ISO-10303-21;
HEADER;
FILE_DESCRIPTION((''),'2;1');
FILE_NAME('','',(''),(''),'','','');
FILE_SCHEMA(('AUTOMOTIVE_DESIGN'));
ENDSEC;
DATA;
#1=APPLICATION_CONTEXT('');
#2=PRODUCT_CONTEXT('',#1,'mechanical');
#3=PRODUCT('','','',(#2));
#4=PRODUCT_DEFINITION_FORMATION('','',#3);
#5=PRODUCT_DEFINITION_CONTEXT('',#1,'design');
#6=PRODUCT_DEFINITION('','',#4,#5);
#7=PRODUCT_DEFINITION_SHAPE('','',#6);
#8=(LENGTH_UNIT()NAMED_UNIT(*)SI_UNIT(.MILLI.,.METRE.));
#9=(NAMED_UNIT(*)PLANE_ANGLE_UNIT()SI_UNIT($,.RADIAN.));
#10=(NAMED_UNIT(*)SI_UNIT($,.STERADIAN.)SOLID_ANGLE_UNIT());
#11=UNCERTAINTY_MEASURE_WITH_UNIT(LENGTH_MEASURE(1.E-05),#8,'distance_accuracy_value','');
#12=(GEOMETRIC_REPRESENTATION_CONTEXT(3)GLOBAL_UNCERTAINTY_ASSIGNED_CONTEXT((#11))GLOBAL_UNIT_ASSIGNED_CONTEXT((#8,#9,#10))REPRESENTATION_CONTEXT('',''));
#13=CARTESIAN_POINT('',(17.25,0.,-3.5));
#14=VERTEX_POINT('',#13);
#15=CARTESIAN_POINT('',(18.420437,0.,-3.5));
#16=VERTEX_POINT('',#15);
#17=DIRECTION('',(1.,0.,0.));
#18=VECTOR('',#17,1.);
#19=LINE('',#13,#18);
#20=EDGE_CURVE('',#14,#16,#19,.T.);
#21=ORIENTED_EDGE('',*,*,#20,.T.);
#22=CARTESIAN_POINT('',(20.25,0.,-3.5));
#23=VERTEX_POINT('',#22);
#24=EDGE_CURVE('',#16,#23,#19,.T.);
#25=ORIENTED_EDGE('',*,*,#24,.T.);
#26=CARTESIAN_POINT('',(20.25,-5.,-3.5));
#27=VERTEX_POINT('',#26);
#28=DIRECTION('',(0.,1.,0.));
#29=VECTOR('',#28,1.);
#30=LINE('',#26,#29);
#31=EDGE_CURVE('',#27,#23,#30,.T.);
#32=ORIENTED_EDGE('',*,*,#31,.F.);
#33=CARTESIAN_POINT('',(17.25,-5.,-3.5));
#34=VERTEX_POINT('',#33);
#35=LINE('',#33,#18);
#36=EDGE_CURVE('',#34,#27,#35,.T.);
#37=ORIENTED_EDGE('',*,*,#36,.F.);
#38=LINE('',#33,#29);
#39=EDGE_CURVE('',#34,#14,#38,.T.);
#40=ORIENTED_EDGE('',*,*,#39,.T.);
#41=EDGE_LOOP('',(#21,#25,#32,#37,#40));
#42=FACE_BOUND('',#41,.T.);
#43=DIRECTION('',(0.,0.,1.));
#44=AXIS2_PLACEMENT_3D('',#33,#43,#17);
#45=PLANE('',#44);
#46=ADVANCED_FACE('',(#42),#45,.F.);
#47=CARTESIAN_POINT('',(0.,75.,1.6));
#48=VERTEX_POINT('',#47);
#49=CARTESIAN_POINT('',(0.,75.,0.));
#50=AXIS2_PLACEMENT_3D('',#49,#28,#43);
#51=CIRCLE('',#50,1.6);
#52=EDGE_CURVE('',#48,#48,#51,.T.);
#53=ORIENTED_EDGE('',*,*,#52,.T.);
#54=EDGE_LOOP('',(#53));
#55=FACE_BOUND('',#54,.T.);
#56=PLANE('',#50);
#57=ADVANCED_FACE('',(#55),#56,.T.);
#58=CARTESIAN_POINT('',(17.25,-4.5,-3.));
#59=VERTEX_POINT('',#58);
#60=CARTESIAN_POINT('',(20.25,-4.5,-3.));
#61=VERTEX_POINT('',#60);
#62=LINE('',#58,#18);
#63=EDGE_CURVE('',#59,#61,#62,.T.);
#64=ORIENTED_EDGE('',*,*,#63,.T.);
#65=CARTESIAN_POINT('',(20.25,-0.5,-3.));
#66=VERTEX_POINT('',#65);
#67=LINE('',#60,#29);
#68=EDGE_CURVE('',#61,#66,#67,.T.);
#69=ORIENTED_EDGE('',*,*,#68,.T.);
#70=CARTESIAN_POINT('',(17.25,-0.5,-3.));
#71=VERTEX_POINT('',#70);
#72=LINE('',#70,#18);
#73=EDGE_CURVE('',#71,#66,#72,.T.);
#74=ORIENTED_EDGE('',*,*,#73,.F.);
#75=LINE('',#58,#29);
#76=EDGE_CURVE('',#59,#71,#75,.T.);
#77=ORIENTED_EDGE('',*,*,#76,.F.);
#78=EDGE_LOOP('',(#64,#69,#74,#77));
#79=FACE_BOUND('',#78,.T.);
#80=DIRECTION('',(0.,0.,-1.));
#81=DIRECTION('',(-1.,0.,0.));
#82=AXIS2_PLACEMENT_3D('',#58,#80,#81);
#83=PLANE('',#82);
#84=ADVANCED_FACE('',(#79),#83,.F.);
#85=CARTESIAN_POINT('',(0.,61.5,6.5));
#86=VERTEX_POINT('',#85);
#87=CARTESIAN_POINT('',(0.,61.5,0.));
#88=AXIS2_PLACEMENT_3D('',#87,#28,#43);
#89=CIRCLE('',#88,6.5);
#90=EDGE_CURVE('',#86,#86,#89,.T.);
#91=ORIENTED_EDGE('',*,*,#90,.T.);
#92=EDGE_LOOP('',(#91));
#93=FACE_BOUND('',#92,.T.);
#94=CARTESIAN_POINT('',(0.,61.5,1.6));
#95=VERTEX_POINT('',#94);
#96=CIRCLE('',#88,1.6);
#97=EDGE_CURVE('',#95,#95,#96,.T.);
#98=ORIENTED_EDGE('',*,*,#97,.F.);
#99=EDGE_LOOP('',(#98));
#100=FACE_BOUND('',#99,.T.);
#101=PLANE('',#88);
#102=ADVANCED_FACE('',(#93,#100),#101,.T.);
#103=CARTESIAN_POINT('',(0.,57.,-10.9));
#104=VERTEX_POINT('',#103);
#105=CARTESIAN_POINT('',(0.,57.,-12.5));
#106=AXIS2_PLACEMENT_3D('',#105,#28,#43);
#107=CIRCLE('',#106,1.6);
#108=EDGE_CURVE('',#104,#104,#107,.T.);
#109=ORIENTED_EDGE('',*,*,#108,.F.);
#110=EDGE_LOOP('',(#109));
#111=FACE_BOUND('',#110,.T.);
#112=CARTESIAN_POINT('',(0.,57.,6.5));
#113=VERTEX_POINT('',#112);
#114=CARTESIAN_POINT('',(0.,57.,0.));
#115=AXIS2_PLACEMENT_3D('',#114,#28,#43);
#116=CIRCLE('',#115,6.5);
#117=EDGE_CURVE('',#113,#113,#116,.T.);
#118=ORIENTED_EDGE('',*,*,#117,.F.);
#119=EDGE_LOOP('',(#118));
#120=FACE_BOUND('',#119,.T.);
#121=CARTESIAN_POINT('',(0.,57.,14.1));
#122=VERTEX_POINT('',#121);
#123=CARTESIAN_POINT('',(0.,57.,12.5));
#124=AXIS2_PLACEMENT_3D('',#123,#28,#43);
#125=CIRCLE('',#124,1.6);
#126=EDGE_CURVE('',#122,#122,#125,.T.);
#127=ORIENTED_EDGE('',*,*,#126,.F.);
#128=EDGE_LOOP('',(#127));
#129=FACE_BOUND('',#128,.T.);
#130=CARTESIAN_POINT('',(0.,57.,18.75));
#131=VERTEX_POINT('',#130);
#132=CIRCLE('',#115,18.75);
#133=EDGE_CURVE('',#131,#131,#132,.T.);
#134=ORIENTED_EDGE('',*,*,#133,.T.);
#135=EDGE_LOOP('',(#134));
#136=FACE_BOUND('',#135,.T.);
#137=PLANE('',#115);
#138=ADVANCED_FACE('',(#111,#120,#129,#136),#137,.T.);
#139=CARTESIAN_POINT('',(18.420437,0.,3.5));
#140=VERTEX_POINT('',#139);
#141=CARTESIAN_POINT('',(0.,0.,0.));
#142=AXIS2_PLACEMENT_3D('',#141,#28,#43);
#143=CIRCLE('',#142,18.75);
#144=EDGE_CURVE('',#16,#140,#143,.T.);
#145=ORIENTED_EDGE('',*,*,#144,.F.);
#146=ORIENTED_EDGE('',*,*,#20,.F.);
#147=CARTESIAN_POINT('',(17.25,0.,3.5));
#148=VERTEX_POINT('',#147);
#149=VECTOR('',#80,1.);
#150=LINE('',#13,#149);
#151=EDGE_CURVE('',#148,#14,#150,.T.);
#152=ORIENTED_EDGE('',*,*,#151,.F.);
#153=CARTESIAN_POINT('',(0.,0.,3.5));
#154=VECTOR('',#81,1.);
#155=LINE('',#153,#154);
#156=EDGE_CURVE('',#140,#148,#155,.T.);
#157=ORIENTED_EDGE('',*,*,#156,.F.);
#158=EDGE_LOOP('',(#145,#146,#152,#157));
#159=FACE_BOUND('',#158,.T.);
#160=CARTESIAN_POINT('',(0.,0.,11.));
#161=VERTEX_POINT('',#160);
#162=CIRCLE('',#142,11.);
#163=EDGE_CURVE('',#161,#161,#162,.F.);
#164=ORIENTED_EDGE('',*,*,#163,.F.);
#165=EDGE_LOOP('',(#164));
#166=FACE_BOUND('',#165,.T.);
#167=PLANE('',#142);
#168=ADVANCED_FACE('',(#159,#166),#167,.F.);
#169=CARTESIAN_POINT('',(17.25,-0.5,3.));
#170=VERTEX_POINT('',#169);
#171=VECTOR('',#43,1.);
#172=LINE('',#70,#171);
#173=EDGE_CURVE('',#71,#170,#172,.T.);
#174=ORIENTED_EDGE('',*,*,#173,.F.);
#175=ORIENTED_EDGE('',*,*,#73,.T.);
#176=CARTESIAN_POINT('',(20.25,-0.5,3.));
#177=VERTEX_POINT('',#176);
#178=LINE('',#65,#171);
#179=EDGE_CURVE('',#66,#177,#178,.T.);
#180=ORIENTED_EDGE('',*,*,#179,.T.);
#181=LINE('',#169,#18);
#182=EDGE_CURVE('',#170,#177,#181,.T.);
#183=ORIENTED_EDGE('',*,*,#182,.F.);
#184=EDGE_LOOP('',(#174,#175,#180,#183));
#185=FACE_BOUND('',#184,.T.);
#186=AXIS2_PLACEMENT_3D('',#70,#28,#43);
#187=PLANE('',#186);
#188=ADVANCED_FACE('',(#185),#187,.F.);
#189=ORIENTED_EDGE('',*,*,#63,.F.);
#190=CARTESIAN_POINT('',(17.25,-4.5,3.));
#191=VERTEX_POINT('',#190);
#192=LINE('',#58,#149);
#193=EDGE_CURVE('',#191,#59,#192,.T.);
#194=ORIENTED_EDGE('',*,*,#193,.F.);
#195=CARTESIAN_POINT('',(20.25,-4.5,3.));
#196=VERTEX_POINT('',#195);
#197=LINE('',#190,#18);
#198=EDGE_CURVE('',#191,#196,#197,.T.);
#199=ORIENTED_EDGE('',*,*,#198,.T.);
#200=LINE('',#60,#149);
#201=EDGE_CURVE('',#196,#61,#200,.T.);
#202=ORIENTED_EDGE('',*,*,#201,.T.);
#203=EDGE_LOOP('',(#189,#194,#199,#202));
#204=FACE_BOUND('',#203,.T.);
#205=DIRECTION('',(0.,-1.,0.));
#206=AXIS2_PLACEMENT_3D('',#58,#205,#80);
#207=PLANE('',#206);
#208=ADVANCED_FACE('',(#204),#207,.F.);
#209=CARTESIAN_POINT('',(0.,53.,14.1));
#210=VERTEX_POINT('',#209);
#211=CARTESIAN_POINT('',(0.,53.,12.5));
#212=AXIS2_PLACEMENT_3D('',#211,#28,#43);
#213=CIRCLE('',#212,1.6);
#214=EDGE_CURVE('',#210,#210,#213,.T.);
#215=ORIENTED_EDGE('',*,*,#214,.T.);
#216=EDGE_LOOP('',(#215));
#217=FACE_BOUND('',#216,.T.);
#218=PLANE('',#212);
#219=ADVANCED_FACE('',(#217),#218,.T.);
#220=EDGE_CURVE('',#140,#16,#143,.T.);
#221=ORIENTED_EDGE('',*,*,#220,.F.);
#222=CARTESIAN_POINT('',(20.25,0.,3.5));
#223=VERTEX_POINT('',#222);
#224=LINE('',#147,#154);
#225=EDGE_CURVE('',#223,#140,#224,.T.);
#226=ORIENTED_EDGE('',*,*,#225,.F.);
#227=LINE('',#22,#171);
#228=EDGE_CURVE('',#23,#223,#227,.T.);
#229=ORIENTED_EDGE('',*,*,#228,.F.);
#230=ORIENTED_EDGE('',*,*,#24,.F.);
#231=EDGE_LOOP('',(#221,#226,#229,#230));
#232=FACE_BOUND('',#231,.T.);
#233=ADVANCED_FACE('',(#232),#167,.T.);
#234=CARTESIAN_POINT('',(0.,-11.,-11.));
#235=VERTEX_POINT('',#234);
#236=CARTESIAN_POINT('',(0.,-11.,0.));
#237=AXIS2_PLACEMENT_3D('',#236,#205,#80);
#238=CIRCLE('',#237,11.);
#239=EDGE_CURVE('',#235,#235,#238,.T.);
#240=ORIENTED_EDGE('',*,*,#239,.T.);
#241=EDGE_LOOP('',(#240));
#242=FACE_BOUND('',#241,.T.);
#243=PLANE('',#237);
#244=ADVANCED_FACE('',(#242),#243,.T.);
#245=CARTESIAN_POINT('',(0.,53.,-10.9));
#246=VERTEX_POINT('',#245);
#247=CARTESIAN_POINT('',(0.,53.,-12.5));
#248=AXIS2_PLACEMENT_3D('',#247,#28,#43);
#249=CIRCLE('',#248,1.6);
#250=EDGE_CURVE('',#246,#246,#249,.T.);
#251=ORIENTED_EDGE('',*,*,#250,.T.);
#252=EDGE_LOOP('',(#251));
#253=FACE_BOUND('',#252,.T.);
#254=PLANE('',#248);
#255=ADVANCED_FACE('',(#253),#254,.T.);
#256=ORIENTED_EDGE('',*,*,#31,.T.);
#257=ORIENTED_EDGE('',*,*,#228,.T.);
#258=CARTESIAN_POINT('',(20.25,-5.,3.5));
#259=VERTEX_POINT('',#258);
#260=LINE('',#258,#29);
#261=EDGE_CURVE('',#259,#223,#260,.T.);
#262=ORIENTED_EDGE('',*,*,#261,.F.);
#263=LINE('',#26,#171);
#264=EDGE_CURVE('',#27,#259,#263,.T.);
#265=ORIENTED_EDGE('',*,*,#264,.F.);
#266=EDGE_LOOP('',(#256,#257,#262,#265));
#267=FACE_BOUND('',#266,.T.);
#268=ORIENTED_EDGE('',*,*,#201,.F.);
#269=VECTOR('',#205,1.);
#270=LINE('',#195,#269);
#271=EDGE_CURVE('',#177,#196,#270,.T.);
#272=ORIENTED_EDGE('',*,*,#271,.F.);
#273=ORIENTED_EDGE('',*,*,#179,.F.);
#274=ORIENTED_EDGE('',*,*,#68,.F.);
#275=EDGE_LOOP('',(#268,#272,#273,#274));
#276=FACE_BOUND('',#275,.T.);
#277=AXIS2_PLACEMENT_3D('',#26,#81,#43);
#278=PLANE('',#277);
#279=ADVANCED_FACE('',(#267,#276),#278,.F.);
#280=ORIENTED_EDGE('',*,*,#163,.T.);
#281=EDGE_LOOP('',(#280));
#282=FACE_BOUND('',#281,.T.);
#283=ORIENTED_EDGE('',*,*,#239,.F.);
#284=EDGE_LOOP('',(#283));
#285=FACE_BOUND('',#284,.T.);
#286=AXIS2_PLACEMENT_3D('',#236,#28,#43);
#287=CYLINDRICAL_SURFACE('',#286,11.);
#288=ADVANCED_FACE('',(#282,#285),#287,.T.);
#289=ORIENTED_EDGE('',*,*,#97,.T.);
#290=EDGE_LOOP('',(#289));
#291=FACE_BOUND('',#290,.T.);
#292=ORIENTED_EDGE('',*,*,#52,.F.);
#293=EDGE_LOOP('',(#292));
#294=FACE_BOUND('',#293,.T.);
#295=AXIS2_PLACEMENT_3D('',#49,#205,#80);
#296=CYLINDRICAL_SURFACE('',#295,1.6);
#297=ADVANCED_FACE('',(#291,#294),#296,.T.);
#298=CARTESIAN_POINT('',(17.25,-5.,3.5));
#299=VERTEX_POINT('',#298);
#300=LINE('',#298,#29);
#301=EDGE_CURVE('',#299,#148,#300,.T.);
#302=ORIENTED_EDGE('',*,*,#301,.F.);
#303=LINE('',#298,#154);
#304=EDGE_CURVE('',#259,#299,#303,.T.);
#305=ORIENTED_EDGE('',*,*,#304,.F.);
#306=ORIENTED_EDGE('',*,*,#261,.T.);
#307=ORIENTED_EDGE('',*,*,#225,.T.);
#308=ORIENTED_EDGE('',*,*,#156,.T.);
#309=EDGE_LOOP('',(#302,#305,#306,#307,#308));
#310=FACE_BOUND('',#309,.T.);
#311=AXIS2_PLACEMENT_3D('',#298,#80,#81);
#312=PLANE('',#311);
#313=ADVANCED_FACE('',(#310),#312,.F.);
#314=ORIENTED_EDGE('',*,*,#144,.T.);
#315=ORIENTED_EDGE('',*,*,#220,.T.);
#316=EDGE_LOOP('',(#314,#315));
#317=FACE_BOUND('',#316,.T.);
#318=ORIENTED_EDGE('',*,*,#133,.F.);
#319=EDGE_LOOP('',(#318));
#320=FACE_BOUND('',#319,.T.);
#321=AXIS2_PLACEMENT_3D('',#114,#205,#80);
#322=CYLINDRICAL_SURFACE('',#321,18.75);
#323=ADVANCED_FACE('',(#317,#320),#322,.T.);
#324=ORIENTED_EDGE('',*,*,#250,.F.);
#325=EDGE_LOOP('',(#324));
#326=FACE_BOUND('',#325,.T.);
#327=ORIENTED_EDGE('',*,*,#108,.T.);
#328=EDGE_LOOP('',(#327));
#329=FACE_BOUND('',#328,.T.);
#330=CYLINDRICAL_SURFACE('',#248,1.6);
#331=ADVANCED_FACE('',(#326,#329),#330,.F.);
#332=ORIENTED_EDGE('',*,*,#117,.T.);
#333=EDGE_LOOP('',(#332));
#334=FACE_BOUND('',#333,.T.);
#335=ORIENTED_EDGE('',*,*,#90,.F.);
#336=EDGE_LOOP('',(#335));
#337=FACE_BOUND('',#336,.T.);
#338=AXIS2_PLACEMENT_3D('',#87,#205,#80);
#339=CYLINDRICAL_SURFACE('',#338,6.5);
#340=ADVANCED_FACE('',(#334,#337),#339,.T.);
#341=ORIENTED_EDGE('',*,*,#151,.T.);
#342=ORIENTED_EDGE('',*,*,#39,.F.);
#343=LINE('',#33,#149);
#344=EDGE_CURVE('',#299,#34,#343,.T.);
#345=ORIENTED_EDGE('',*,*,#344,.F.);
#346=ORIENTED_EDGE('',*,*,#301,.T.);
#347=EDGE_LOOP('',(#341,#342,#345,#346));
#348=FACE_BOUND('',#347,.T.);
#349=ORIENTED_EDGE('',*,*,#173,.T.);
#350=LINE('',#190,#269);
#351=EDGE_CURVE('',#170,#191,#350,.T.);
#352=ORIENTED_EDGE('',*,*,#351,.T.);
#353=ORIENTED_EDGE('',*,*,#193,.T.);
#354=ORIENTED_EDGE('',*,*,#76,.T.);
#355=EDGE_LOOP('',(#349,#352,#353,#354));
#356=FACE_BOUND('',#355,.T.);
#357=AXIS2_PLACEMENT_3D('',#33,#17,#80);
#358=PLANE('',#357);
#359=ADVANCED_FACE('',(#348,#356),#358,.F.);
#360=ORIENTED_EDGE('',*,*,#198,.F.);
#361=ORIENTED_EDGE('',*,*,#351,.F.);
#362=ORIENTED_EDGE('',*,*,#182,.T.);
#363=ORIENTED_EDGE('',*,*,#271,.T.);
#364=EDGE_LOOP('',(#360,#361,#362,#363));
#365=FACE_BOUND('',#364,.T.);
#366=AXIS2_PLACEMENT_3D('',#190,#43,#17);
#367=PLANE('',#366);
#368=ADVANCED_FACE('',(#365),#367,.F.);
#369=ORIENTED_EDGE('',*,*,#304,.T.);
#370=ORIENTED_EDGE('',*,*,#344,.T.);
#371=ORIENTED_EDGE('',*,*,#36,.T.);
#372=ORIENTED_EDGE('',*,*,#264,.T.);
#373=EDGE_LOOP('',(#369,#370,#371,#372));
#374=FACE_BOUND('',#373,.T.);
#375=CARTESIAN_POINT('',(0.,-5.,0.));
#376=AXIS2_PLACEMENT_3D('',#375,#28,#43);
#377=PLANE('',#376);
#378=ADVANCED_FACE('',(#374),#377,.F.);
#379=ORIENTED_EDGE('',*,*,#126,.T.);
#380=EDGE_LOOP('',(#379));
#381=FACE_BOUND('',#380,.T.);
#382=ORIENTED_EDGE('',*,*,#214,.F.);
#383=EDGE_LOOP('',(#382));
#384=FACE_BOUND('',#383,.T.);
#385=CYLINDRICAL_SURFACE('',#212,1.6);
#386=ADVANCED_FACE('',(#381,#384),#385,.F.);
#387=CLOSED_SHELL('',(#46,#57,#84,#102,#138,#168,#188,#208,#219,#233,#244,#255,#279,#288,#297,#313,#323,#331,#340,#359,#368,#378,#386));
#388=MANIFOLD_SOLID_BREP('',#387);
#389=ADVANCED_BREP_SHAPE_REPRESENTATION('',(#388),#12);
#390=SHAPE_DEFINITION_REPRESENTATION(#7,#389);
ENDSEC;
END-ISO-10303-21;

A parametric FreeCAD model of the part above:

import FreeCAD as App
import Part
import Sketcher

V = App.Vector

doc = App.newDocument("Part")
body = doc.addObject("PartDesign::Body", "Body")

# Sketch on XZ plane
sketch1 = body.newObject("Sketcher::SketchObject", "Sketch")
sketch1.AttachmentSupport = (doc.getObject("XZ_Plane"), [""])
sketch1.MapMode = "FlatFace"
sketch1.addGeometry(Part.Circle(V(0, 0, 0), V(0, 0, 1), 19), False)
sketch1.addConstraint(Sketcher.Constraint("Coincident", 0, 3, -1, 1))
sketch1.addConstraint(Sketcher.Constraint("Diameter", 0, 37.5))
pad1 = body.newObject("PartDesign::Pad", "Pad")
pad1.Profile = sketch1
pad1.Length = 57
pad1.Reversed = True

# Sketch on XZ plane
sketch2 = body.newObject("Sketcher::SketchObject", "Sketch001")
sketch2.AttachmentSupport = (doc.getObject("XZ_Plane"), [""])
sketch2.MapMode = "FlatFace"
sketch2.addGeometry(Part.Circle(V(0, 0, 0), V(0, 0, 1), 11), False)
sketch2.addConstraint(Sketcher.Constraint("Coincident", 0, 3, -1, 1))
sketch2.addConstraint(Sketcher.Constraint("Diameter", 0, 22.0))
pad2 = body.newObject("PartDesign::Pad", "Pad001")
pad2.Profile = sketch2
pad2.Length = 11

# Sketch on XZ plane
sketch3 = body.newObject("Sketcher::SketchObject", "Sketch002")
sketch3.AttachmentSupport = (doc.getObject("XZ_Plane"), [""])
sketch3.MapMode = "FlatFace"
sketch3.addGeometry(Part.LineSegment(V(17.2, 3.5, 0), V(17.2, -3.5, 0)), False)
sketch3.addGeometry(Part.LineSegment(V(17.2, -3.5, 0), V(20.2, -3.5, 0)), False)
sketch3.addGeometry(Part.LineSegment(V(20.2, -3.5, 0), V(20.2, 3.5, 0)), False)
sketch3.addGeometry(Part.LineSegment(V(20.2, 3.5, 0), V(17.2, 3.5, 0)), False)
sketch3.addConstraint(Sketcher.Constraint("Coincident", 0, 2, 1, 1))
sketch3.addConstraint(Sketcher.Constraint("Coincident", 1, 2, 2, 1))
sketch3.addConstraint(Sketcher.Constraint("Coincident", 2, 2, 3, 1))
sketch3.addConstraint(Sketcher.Constraint("Coincident", 3, 2, 0, 1))
sketch3.addConstraint(Sketcher.Constraint("Vertical", 0))
sketch3.addConstraint(Sketcher.Constraint("Horizontal", 1))
sketch3.addConstraint(Sketcher.Constraint("Vertical", 2))
sketch3.addConstraint(Sketcher.Constraint("Horizontal", 3))
sketch3.addConstraint(Sketcher.Constraint("DistanceX", 1, 1, 1, 2, 3.0))
sketch3.addConstraint(Sketcher.Constraint("DistanceY", 0, 2, 0, 1, 7.0))
sketch3.addConstraint(Sketcher.Constraint("DistanceY", 0, 2, -1, 1, 3.5))
sketch3.addConstraint(Sketcher.Constraint("DistanceX", -1, 1, 0, 2, 17.25))
pad3 = body.newObject("PartDesign::Pad", "Pad002")
pad3.Profile = sketch3
pad3.Length = 5

# Sketch on YZ plane
sketch4 = body.newObject("Sketcher::SketchObject", "Sketch003")
sketch4.AttachmentSupport = (doc.getObject("YZ_Plane"), [""])
sketch4.MapMode = "FlatFace"
sketch4.AttachmentOffset = App.Placement(V(0, 0, 20.25), App.Rotation())
sketch4.addGeometry(Part.LineSegment(V(-0.5, 3, 0), V(-4.5, 3, 0)), False)
sketch4.addGeometry(Part.LineSegment(V(-4.5, 3, 0), V(-4.5, -3, 0)), False)
sketch4.addGeometry(Part.LineSegment(V(-4.5, -3, 0), V(-0.5, -3, 0)), False)
sketch4.addGeometry(Part.LineSegment(V(-0.5, -3, 0), V(-0.5, 3, 0)), False)
sketch4.addConstraint(Sketcher.Constraint("Coincident", 0, 2, 1, 1))
sketch4.addConstraint(Sketcher.Constraint("Coincident", 1, 2, 2, 1))
sketch4.addConstraint(Sketcher.Constraint("Coincident", 2, 2, 3, 1))
sketch4.addConstraint(Sketcher.Constraint("Coincident", 3, 2, 0, 1))
sketch4.addConstraint(Sketcher.Constraint("Horizontal", 0))
sketch4.addConstraint(Sketcher.Constraint("Vertical", 1))
sketch4.addConstraint(Sketcher.Constraint("Horizontal", 2))
sketch4.addConstraint(Sketcher.Constraint("Vertical", 3))
sketch4.addConstraint(Sketcher.Constraint("DistanceX", 0, 2, 0, 1, 4.0))
sketch4.addConstraint(Sketcher.Constraint("DistanceY", 1, 2, 1, 1, 6.0))
sketch4.addConstraint(Sketcher.Constraint("DistanceY", -1, 1, 0, 2, 3.0))
sketch4.addConstraint(Sketcher.Constraint("DistanceX", 0, 2, -1, 1, 4.5))
pocket1 = body.newObject("PartDesign::Pocket", "Pocket")
pocket1.Profile = sketch4
pocket1.Length = 3

# Sketch on XZ plane
sketch5 = body.newObject("Sketcher::SketchObject", "Sketch004")
sketch5.AttachmentSupport = (doc.getObject("XZ_Plane"), [""])
sketch5.MapMode = "FlatFace"
sketch5.AttachmentOffset = App.Placement(V(0, 0, -57), App.Rotation())
sketch5.addGeometry(Part.Circle(V(0, 0, 0), V(0, 0, 1), 6), False)
sketch5.addConstraint(Sketcher.Constraint("Coincident", 0, 3, -1, 1))
sketch5.addConstraint(Sketcher.Constraint("Diameter", 0, 13.0))
pad4 = body.newObject("PartDesign::Pad", "Pad003")
pad4.Profile = sketch5
pad4.Length = 4.5
pad4.Reversed = True

# Sketch on XZ plane
sketch6 = body.newObject("Sketcher::SketchObject", "Sketch005")
sketch6.AttachmentSupport = (doc.getObject("XZ_Plane"), [""])
sketch6.MapMode = "FlatFace"
sketch6.AttachmentOffset = App.Placement(V(0, 0, -57), App.Rotation())
sketch6.addGeometry(Part.Circle(V(0, 12.5, 0), V(0, 0, 1), 1.6), False)
sketch6.addGeometry(Part.Circle(V(0, -12.5, 0), V(0, 0, 1), 1.6), False)
sketch6.addConstraint(Sketcher.Constraint("Equal", 0, 1))
sketch6.addConstraint(Sketcher.Constraint("Symmetric", 0, 3, 1, 3, -1, 1))
sketch6.addConstraint(Sketcher.Constraint("PointOnObject", 0, 3, -2))
sketch6.addConstraint(Sketcher.Constraint("Diameter", 0, 3.2))
sketch6.addConstraint(Sketcher.Constraint("DistanceY", 1, 3, 0, 3, 25.0))
pocket2 = body.newObject("PartDesign::Pocket", "Pocket001")
pocket2.Profile = sketch6
pocket2.Length = 4
pocket2.Reversed = True

# Sketch on XZ plane
sketch7 = body.newObject("Sketcher::SketchObject", "Sketch006")
sketch7.AttachmentSupport = (doc.getObject("XZ_Plane"), [""])
sketch7.MapMode = "FlatFace"
sketch7.AttachmentOffset = App.Placement(V(0, 0, -61.5), App.Rotation())
sketch7.addGeometry(Part.Circle(V(0, 0, 0), V(0, 0, 1), 1.6), False)
sketch7.addConstraint(Sketcher.Constraint("Coincident", 0, 3, -1, 1))
sketch7.addConstraint(Sketcher.Constraint("Diameter", 0, 3.2))
pad5 = body.newObject("PartDesign::Pad", "Pad004")
pad5.Profile = sketch7
pad5.Length = 13.5
pad5.Reversed = True

doc.recompute()
